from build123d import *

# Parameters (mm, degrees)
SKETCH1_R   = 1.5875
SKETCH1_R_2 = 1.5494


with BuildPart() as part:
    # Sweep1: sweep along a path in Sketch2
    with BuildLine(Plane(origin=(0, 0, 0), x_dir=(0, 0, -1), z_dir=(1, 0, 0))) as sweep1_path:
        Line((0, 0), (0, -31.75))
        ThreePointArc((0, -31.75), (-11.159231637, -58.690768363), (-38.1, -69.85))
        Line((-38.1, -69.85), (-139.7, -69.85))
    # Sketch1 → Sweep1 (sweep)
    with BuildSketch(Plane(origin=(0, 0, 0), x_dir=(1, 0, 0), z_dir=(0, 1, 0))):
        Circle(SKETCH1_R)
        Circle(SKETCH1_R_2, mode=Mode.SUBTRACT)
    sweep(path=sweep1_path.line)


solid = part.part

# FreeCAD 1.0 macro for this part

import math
import FreeCAD as App
import Part
import Sketcher
from FreeCAD import Vector
Q = App.Units.Quantity

doc = App.newDocument("Part")
body = doc.addObject("PartDesign::Body", "Body")

sketch1 = body.newObject("Sketcher::SketchObject", "Sketch")
sketch1.AttachmentSupport = (doc.getObject("XZ_Plane"), [""])
sketch1.MapMode = "FlatFace"
sketch1.addGeometry([
    Part.Circle(Vector(0, 0, 0), Vector(0, 0, 1), 1.6),
    Part.Circle(Vector(0, 0, 0), Vector(0, 0, 1), 1.5),
], False)
sketch1.addConstraint([
    Sketcher.Constraint("Coincident", 0, 3, -1, 1),
    Sketcher.Constraint("Coincident", 1, 3, -1, 1),
    Sketcher.Constraint("Diameter", 0, Q("0.125 in")),
    Sketcher.Constraint("Diameter", 1, Q("0.122 in")),
])

sketch2 = body.newObject("Sketcher::SketchObject", "Sketch001")
sketch2.AttachmentSupport = (doc.getObject("YZ_Plane"), [""])
sketch2.MapMode = "FlatFace"
sketch2.addGeometry([
    Part.LineSegment(Vector(0, 0, 0), Vector(-32, 0, 0)),
    Part.ArcOfCircle(Part.Circle(Vector(-32, 38, 0), Vector(0, 0, 1), 38), math.radians(-180), math.radians(-90)),
    Part.LineSegment(Vector(-70, 38, 0), Vector(-70, 140, 0)),
], False)
sketch2.addConstraint([
    Sketcher.Constraint("Tangent", 0, 2, 1, 2),
    Sketcher.Constraint("Tangent", 1, 1, 2, 1),
    Sketcher.Constraint("Horizontal", 0),
    Sketcher.Constraint("Vertical", 2),
    Sketcher.Constraint("Coincident", 0, 1, -1, 1),
    Sketcher.Constraint("Radius", 1, Q("1.5 in")),
    Sketcher.Constraint("DistanceY", 2, 1, 2, 2, Q("4 in")),
    Sketcher.Constraint("DistanceX", 0, 2, 0, 1, Q("1.25 in")),
])
doc.recompute()

additivepipe = body.newObject("PartDesign::AdditivePipe", "AdditivePipe")
additivepipe.Profile = sketch1
additivepipe.Spine = (sketch2, ["Edge1", "Edge2", "Edge3"])

doc.recompute()
